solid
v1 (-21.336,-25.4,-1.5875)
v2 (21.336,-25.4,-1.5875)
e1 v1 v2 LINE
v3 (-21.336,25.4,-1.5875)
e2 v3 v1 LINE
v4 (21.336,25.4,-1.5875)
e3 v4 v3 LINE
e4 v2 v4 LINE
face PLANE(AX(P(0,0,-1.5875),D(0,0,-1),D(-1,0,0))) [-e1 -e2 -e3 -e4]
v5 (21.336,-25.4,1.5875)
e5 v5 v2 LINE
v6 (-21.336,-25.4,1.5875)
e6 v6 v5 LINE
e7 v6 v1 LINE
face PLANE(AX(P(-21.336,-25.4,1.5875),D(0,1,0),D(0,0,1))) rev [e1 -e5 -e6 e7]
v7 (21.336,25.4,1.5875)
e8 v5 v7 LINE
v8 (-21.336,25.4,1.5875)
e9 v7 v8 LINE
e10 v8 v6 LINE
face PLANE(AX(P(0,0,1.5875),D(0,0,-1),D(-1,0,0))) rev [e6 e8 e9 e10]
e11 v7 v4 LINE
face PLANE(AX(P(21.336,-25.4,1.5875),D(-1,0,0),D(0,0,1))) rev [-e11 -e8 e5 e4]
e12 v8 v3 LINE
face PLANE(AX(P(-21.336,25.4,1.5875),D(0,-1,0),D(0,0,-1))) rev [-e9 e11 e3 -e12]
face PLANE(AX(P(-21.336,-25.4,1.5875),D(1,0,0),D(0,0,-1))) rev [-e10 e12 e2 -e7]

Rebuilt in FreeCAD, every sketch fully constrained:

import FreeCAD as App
import Part
import Sketcher
Q = App.Units.Quantity

doc = App.newDocument("Part")
params = doc.addObject("Spreadsheet::Sheet", "Params")
for row, (alias, value) in enumerate([
    ("sketch1_height", "2 in"),
    ("sketch1_width", "1.68 in"),
    ("pad1_length", "0.125 in"),
], start=1):
    params.set(f"A{row}", alias)
    params.set(f"B{row}", "=" + value)
    params.setAlias(f"B{row}", alias)

body = doc.addObject("PartDesign::Body", "Body")

# Sketch on XY plane
sketch1 = body.newObject("Sketcher::SketchObject", "Sketch")
sketch1.AttachmentSupport = (doc.getObject("XY_Plane"), [""])
sketch1.MapMode = "FlatFace"
sketch1.addGeometry(Part.LineSegment(App.Vector(-21, 25, 0), App.Vector(-21, -25, 0)), False)
sketch1.addGeometry(Part.LineSegment(App.Vector(-21, -25, 0), App.Vector(21, -25, 0)), False)
sketch1.addGeometry(Part.LineSegment(App.Vector(21, -25, 0), App.Vector(21, 25, 0)), False)
sketch1.addGeometry(Part.LineSegment(App.Vector(21, 25, 0), App.Vector(-21, 25, 0)), False)
sketch1.addConstraint(Sketcher.Constraint("Coincident", 0, 2, 1, 1))
sketch1.addConstraint(Sketcher.Constraint("Coincident", 1, 2, 2, 1))
sketch1.addConstraint(Sketcher.Constraint("Coincident", 2, 2, 3, 1))
sketch1.addConstraint(Sketcher.Constraint("Coincident", 3, 2, 0, 1))
sketch1.addConstraint(Sketcher.Constraint("Vertical", 0))
sketch1.addConstraint(Sketcher.Constraint("Horizontal", 1))
sketch1.addConstraint(Sketcher.Constraint("Vertical", 2))
sketch1.addConstraint(Sketcher.Constraint("Horizontal", 3))
sketch1.addConstraint(Sketcher.Constraint("Symmetric", 0, 2, 2, 2, -1, 1))
sketch1.addConstraint(Sketcher.Constraint("DistanceY", 0, 2, 0, 1, Q("2 in")))
sketch1.addConstraint(Sketcher.Constraint("DistanceX", 1, 1, 1, 2, Q("1.68 in")))
sketch1.setExpression("Constraints[9]", "Params.sketch1_height")
sketch1.setExpression("Constraints[10]", "Params.sketch1_width")
pad1 = body.newObject("PartDesign::Pad", "Pad")
pad1.Profile = sketch1
pad1.setExpression("Length", "Params.pad1_length")
pad1.Midplane = True

doc.recompute()
